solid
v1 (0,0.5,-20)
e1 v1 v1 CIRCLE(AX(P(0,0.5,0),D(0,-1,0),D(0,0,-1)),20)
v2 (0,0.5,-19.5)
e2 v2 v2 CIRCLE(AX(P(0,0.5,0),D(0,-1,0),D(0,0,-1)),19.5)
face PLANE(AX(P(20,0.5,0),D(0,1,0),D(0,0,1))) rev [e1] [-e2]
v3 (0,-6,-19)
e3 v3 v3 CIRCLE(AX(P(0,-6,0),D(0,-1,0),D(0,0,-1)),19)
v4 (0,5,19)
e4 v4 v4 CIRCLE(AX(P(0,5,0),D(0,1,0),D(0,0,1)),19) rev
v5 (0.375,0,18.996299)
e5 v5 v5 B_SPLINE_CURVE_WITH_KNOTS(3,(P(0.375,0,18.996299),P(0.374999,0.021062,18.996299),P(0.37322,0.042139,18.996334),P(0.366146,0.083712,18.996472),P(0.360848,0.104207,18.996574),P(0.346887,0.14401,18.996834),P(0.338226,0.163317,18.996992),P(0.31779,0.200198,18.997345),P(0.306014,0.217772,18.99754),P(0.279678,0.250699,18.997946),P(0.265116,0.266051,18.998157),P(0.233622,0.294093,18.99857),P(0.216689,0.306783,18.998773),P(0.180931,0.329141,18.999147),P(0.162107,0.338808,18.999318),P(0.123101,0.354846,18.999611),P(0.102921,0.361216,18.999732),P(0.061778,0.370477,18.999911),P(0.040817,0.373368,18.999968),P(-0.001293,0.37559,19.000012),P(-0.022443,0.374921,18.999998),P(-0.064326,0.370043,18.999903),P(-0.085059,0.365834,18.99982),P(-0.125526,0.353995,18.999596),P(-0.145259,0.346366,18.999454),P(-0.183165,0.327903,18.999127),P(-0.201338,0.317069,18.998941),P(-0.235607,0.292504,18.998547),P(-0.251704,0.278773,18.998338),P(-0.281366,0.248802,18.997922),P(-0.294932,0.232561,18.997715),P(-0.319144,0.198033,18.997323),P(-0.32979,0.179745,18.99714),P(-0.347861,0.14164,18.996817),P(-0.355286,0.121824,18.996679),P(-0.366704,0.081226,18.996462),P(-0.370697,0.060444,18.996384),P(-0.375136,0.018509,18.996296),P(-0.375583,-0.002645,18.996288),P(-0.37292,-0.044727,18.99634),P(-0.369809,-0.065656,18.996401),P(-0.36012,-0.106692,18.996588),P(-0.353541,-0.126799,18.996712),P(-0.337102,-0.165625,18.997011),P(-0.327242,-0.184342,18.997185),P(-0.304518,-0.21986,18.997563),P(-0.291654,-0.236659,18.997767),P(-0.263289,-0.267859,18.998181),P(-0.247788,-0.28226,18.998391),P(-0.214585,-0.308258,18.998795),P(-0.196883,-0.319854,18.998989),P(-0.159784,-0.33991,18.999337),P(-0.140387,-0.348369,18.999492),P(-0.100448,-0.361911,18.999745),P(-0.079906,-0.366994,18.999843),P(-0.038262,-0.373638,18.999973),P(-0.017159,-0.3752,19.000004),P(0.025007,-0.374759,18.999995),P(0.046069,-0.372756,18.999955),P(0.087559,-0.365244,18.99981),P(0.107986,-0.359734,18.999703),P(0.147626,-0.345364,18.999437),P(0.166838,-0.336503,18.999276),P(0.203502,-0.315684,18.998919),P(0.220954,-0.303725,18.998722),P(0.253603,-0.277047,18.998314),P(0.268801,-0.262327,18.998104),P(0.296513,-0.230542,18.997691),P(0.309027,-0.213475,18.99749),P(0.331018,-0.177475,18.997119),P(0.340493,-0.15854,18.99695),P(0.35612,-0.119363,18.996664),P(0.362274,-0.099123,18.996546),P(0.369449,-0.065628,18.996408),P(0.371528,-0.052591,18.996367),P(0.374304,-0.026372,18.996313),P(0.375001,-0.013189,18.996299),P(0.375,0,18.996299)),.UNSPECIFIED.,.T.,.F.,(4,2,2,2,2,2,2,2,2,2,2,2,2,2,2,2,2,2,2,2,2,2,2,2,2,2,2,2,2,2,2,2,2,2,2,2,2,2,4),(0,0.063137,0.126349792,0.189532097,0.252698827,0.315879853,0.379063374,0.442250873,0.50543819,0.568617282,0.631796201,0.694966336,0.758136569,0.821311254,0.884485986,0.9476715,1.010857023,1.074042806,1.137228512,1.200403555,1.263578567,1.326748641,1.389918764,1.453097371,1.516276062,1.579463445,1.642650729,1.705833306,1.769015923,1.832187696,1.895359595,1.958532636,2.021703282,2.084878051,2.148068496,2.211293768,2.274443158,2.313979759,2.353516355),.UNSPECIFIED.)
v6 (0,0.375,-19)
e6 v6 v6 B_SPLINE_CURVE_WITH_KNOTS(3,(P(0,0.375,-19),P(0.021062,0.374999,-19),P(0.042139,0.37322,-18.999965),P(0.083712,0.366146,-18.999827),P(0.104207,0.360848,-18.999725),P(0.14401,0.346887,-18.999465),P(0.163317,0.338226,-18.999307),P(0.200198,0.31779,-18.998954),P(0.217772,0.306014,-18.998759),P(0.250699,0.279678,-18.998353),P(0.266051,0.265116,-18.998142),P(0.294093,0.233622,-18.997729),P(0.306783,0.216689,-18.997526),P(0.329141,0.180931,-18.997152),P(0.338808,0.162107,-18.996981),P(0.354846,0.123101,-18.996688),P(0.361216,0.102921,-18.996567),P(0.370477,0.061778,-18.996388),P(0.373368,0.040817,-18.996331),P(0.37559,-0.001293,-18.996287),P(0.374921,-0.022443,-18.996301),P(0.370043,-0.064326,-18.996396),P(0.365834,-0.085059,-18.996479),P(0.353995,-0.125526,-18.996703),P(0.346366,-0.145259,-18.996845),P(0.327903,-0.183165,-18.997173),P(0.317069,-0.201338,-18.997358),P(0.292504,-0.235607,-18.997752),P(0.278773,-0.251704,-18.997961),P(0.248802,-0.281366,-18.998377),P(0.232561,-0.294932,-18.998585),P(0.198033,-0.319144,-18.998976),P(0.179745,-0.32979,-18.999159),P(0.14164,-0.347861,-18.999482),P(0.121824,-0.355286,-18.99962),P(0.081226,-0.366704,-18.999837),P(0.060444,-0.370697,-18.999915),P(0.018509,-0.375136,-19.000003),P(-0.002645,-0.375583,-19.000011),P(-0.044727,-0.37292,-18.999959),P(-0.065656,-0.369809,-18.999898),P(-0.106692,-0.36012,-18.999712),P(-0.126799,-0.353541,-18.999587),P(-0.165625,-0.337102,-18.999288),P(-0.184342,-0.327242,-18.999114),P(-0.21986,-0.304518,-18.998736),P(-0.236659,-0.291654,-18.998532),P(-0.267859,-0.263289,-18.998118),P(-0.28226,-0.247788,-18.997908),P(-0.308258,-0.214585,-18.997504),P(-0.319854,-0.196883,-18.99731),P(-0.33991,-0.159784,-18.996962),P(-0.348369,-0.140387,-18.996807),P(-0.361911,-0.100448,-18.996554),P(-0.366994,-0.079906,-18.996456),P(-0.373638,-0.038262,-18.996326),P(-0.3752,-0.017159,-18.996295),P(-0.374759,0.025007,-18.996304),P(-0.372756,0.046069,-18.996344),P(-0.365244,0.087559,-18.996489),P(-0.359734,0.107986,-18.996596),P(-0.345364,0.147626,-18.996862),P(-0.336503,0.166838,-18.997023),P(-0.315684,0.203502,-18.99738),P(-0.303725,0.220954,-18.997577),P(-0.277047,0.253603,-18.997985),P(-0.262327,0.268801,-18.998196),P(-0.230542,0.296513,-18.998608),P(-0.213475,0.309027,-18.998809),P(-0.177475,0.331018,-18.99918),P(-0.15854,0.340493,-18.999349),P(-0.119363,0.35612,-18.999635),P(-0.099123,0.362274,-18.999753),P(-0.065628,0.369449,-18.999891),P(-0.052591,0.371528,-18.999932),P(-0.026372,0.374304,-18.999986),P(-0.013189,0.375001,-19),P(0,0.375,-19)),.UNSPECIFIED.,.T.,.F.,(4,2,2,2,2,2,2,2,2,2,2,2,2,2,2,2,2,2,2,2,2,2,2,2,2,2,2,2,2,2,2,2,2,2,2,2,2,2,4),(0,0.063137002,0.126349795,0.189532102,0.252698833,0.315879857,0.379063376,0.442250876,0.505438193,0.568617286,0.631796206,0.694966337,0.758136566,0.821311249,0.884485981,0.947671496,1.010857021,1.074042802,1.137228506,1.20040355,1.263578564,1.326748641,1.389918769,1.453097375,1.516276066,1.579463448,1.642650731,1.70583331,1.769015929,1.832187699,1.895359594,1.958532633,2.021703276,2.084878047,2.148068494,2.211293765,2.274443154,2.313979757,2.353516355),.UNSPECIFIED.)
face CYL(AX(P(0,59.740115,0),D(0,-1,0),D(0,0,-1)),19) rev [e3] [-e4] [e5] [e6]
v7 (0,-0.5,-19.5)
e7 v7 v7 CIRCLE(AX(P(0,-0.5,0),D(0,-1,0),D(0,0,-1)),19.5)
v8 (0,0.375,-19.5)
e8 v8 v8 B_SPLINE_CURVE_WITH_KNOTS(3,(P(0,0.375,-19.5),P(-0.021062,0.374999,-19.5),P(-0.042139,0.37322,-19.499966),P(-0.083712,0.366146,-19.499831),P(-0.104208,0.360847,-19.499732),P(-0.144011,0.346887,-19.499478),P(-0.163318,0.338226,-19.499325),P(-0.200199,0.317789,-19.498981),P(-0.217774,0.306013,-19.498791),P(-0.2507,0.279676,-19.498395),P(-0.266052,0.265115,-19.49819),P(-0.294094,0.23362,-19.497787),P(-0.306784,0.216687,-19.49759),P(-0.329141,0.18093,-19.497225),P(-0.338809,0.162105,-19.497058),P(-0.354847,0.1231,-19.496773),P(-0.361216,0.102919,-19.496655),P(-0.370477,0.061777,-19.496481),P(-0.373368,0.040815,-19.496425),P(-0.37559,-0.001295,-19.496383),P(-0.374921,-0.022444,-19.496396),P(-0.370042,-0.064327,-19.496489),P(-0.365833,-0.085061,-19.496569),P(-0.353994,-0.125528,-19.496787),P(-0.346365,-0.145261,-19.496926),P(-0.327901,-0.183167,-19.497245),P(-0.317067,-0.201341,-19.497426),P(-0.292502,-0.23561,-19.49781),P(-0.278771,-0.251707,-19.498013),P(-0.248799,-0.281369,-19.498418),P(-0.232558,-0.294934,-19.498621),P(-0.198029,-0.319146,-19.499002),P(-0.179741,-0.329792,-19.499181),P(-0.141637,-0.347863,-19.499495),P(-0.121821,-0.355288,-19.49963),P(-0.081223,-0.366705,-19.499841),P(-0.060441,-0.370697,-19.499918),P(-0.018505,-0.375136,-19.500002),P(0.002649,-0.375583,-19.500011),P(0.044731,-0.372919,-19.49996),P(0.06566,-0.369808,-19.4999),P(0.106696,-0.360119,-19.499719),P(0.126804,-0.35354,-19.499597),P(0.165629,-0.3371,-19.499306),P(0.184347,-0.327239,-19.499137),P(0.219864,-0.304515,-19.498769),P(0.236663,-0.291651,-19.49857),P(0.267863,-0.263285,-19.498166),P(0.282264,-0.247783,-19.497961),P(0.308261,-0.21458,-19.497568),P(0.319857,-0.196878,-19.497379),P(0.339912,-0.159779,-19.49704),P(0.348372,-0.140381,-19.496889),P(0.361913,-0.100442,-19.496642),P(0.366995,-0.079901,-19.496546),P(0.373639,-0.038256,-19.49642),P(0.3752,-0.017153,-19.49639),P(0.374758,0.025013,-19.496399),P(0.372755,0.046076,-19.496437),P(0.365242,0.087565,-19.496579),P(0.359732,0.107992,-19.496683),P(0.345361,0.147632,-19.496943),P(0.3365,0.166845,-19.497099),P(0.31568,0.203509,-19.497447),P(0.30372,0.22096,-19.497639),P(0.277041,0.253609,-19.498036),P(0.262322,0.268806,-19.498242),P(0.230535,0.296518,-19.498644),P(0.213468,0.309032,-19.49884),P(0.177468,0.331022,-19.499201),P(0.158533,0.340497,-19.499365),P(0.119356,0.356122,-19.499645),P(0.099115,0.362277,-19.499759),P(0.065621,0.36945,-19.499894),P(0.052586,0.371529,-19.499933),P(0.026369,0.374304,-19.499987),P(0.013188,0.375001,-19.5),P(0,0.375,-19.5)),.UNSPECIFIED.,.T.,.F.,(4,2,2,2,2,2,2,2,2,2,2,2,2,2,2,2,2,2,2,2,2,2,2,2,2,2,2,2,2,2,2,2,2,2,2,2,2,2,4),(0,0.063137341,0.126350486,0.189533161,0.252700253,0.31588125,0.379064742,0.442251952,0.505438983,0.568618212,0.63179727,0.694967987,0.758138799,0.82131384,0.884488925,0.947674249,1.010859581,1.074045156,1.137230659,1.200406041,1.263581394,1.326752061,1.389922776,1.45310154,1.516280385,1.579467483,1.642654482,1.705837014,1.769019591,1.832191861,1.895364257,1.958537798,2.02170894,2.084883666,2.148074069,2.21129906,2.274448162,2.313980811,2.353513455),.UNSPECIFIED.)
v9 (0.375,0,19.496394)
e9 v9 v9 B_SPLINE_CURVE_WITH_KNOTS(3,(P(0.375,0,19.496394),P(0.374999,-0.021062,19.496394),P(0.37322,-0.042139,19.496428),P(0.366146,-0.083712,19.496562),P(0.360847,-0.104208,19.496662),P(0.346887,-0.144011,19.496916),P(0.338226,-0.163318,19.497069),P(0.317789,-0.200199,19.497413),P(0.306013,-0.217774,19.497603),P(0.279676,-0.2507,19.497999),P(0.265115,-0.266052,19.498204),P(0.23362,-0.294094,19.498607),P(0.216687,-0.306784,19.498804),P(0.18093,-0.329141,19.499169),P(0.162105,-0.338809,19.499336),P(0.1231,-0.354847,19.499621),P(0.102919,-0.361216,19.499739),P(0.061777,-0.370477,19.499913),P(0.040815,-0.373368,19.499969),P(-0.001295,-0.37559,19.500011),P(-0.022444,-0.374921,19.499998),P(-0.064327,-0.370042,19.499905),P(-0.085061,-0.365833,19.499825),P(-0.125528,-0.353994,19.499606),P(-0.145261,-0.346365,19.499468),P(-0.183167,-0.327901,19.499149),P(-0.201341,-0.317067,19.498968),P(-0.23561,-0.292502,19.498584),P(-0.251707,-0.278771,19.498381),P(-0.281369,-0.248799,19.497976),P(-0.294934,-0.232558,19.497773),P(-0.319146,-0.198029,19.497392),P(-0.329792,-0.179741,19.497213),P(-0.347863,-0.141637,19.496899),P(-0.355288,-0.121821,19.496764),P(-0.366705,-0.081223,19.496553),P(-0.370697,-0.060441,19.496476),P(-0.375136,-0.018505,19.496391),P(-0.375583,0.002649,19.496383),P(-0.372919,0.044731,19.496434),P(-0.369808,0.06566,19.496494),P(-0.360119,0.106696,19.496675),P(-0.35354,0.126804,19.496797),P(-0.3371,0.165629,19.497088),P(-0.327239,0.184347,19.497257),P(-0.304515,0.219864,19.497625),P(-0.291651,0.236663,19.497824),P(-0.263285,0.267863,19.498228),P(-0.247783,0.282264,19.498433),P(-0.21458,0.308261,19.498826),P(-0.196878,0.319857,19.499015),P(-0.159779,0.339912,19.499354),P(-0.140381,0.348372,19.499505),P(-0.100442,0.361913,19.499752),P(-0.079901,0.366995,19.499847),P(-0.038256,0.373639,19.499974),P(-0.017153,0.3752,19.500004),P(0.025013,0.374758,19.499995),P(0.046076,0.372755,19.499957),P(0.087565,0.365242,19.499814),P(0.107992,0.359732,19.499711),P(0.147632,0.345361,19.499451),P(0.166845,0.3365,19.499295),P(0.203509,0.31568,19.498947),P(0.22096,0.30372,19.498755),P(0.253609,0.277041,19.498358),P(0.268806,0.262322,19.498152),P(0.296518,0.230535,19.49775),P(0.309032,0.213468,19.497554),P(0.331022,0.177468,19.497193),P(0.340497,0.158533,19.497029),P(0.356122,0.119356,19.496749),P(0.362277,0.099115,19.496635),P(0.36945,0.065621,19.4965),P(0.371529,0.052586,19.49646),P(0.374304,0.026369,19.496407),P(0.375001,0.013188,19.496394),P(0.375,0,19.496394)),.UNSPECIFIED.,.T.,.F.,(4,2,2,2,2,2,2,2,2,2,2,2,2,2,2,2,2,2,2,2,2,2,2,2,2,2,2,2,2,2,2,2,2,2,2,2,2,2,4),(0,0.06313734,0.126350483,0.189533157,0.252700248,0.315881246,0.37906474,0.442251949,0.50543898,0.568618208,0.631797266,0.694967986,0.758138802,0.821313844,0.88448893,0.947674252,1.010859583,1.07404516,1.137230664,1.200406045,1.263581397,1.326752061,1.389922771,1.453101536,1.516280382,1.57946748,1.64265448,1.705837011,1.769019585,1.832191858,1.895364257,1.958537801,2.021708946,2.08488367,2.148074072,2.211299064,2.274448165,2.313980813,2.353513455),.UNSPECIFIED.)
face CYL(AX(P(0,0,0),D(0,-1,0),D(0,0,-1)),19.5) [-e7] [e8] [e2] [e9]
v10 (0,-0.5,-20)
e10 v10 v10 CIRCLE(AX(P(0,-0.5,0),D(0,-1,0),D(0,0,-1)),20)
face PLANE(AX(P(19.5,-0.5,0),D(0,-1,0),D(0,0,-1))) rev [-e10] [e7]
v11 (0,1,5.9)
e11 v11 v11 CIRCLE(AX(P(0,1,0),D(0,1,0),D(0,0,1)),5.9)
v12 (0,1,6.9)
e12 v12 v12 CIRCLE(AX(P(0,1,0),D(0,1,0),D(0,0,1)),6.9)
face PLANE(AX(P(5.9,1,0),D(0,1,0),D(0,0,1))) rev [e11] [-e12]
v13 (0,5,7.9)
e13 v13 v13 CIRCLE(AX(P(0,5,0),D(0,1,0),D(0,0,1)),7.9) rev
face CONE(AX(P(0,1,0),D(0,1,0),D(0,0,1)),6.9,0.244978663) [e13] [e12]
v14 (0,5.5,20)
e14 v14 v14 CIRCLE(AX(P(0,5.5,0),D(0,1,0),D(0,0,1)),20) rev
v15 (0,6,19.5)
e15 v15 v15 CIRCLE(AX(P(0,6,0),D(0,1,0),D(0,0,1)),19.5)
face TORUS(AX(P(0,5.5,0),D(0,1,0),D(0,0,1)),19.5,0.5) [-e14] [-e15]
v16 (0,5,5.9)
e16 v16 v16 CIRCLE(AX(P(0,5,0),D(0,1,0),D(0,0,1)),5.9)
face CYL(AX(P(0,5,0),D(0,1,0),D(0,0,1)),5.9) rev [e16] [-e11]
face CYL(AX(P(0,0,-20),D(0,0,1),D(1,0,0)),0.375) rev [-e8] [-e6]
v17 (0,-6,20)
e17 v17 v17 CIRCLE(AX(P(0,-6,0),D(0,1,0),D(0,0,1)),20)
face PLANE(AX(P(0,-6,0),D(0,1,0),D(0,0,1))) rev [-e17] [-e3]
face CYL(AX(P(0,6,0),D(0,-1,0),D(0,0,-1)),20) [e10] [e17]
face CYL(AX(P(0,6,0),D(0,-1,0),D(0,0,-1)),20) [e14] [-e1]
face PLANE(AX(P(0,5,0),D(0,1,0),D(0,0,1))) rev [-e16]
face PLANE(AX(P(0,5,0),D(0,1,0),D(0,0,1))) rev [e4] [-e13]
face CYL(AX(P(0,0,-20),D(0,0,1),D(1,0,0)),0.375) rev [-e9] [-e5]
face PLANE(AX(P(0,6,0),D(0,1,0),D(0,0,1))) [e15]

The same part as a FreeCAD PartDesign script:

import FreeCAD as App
import Part
import Sketcher


def edges_at(feature, points):
    """Names of the edges that pass closest to the given points."""
    edges = feature.Shape.Edges
    near = lambda p: min(range(len(edges)), key=lambda i: edges[i].distToShape(Part.Vertex(*p))[0])
    return sorted({f"Edge{near(p) + 1}" for p in points})

doc = App.newDocument("Part")
body = doc.addObject("PartDesign::Body", "Body")

# Sketch on XZ plane
sketch1 = body.newObject("Sketcher::SketchObject", "Sketch")
sketch1.AttachmentSupport = (doc.getObject("XZ_Plane"), [""])
sketch1.MapMode = "FlatFace"
sketch1.addGeometry(Part.Circle(App.Vector(0, 0, 0), App.Vector(0, 0, 1), 20), False)
sketch1.addConstraint([
    Sketcher.Constraint("Coincident", 0, 3, -1, 1),
    Sketcher.Constraint("Diameter", 0, 40.0),
])
pad1 = body.newObject("PartDesign::Pad", "Pad")
pad1.Profile = sketch1
pad1.Length = 12
pad1.Midplane = True

# Sketch on XZ plane
sketch2 = body.newObject("Sketcher::SketchObject", "Sketch001")
sketch2.AttachmentSupport = (doc.getObject("XZ_Plane"), [""])
sketch2.MapMode = "FlatFace"
sketch2.AttachmentOffset = App.Placement(App.Vector(0, 0, 6), App.Rotation())
sketch2.addGeometry(Part.Circle(App.Vector(0, 0, 0), App.Vector(0, 0, 1), 19), False)
sketch2.addConstraint([
    Sketcher.Constraint("Coincident", 0, 3, -1, 1),
    Sketcher.Constraint("Diameter", 0, 38.0),
])
pocket1 = body.newObject("PartDesign::Pocket", "Pocket")
pocket1.Profile = sketch2
pocket1.Length = 11
doc.recompute()

fillet = body.newObject("PartDesign::Fillet", "Fillet")
fillet.Base = (pocket1, edges_at(pocket1, [(-20, 6, 0)]))
fillet.Radius = 0.5

# Sketch on XY plane
sketch3 = body.newObject("Sketcher::SketchObject", "Sketch002")
sketch3.AttachmentSupport = (doc.getObject("XY_Plane"), [""])
sketch3.MapMode = "FlatFace"
sketch3.addGeometry([
    Part.LineSegment(App.Vector(19.5, 0.5, 0), App.Vector(19.5, -0.5, 0)),
    Part.LineSegment(App.Vector(19.5, -0.5, 0), App.Vector(20, -0.5, 0)),
    Part.LineSegment(App.Vector(20, -0.5, 0), App.Vector(20, 0.5, 0)),
    Part.LineSegment(App.Vector(20, 0.5, 0), App.Vector(19.5, 0.5, 0)),
], False)
sketch3.addConstraint([
    Sketcher.Constraint("Coincident", 0, 2, 1, 1),
    Sketcher.Constraint("Coincident", 1, 2, 2, 1),
    Sketcher.Constraint("Coincident", 2, 2, 3, 1),
    Sketcher.Constraint("Coincident", 3, 2, 0, 1),
    Sketcher.Constraint("Vertical", 0),
    Sketcher.Constraint("Horizontal", 1),
    Sketcher.Constraint("Vertical", 2),
    Sketcher.Constraint("Horizontal", 3),
    Sketcher.Constraint("DistanceY", 0, 2, 0, 1, 1.0),
    Sketcher.Constraint("DistanceX", 1, 1, 1, 2, 0.5),
    Sketcher.Constraint("DistanceX", -1, 1, 1, 2, 20.0),
    Sketcher.Constraint("DistanceY", 0, 2, -1, 1, 0.5),
])
groove = body.newObject("PartDesign::Groove", "Groove")
groove.Profile = sketch3
groove.ReferenceAxis = (sketch3, ["V_Axis"])
groove.Angle = 360

# Sketch on XY plane
sketch4 = body.newObject("Sketcher::SketchObject", "Sketch003")
sketch4.AttachmentSupport = (doc.getObject("XY_Plane"), [""])
sketch4.MapMode = "FlatFace"
sketch4.addGeometry(Part.Circle(App.Vector(0, 0, 0), App.Vector(0, 0, 1), 0.375), False)
sketch4.addConstraint([
    Sketcher.Constraint("Coincident", 0, 3, -1, 1),
    Sketcher.Constraint("Diameter", 0, 0.75),
])
pocket2 = body.newObject("PartDesign::Pocket", "Pocket001")
pocket2.Profile = sketch4
pocket2.Type = "ThroughAll"
pocket2.Midplane = True

# Sketch on XY plane
sketch5 = body.newObject("Sketcher::SketchObject", "Sketch004")
sketch5.AttachmentSupport = (doc.getObject("XY_Plane"), [""])
sketch5.MapMode = "FlatFace"
sketch5.addGeometry([
    Part.LineSegment(App.Vector(5.9, 5, 0), App.Vector(5.9, 1, 0)),
    Part.LineSegment(App.Vector(5.9, 1, 0), App.Vector(6.9, 1, 0)),
    Part.LineSegment(App.Vector(6.9, 1, 0), App.Vector(7.9, 5, 0)),
    Part.LineSegment(App.Vector(7.9, 5, 0), App.Vector(5.9, 5, 0)),
], False)
sketch5.addConstraint([
    Sketcher.Constraint("Coincident", 0, 2, 1, 1),
    Sketcher.Constraint("Coincident", 1, 2, 2, 1),
    Sketcher.Constraint("Coincident", 2, 2, 3, 1),
    Sketcher.Constraint("Coincident", 3, 2, 0, 1),
    Sketcher.Constraint("Vertical", 0),
    Sketcher.Constraint("Horizontal", 1),
    Sketcher.Constraint("Horizontal", 3),
    Sketcher.Constraint("DistanceX", 1, 1, 1, 2, 1.0),
    Sketcher.Constraint("DistanceX", 3, 2, 3, 1, 2.0),
    Sketcher.Constraint("DistanceY", 0, 2, 0, 1, 4.0),
    Sketcher.Constraint("DistanceY", -1, 1, 0, 2, 1.0),
    Sketcher.Constraint("DistanceX", -1, 1, 0, 2, 5.9),
])
revolution = body.newObject("PartDesign::Revolution", "Revolution")
revolution.Profile = sketch5
revolution.ReferenceAxis = (sketch5, ["V_Axis"])
revolution.Angle = 360

doc.recompute()
